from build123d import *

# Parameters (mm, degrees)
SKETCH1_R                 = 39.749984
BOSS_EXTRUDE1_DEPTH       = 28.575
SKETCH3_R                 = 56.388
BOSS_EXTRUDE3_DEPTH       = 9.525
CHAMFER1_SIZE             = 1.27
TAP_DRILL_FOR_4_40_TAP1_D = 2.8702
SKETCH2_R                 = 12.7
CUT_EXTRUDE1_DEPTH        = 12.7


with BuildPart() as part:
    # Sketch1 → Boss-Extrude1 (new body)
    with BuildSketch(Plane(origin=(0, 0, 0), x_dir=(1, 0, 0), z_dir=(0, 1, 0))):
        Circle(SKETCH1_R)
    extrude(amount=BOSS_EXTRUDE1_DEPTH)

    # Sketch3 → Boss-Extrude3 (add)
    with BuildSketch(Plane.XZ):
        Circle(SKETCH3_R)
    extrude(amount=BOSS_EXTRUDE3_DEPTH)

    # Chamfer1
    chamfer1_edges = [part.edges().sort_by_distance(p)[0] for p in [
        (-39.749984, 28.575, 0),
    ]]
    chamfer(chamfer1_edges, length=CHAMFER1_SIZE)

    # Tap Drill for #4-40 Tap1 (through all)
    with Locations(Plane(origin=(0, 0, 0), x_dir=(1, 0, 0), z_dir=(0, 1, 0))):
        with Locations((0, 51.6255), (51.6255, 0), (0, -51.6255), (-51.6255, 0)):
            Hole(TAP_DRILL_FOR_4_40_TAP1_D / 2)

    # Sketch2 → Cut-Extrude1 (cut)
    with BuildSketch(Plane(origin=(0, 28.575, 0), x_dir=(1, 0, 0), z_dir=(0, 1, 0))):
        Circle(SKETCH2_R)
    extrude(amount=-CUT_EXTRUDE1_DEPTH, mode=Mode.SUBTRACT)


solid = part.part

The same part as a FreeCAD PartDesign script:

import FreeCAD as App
import Part
import Sketcher
Q = App.Units.Quantity


def edges_at(feature, points):
    """Names of the edges that pass closest to the given points."""
    edges = feature.Shape.Edges
    near = lambda p: min(range(len(edges)), key=lambda i: edges[i].distToShape(Part.Vertex(*p))[0])
    return sorted({f"Edge{near(p) + 1}" for p in points})

doc = App.newDocument("Part")
body = doc.addObject("PartDesign::Body", "Body")

sketch1 = body.newObject("Sketcher::SketchObject", "Sketch")
sketch1.AttachmentSupport = (doc.getObject("XZ_Plane"), [""])
sketch1.MapMode = "FlatFace"
sketch1.addGeometry(Part.Circle(App.Vector(0, 0, 0), App.Vector(0, 0, 1), 40), False)
sketch1.addConstraint(Sketcher.Constraint("Coincident", 0, 3, -1, 1))
sketch1.addConstraint(Sketcher.Constraint("Diameter", 0, 79.499968))
pad1 = body.newObject("PartDesign::Pad", "Pad")
pad1.Profile = sketch1
pad1.Length = Q("1.125 in")
pad1.Reversed = True

sketch2 = body.newObject("Sketcher::SketchObject", "Sketch001")
sketch2.AttachmentSupport = (doc.getObject("XZ_Plane"), [""])
sketch2.MapMode = "FlatFace"
sketch2.addGeometry(Part.Circle(App.Vector(0, 0, 0), App.Vector(0, 0, 1), 56), False)
sketch2.addConstraint(Sketcher.Constraint("Coincident", 0, 3, -1, 1))
sketch2.addConstraint(Sketcher.Constraint("Diameter", 0, Q("4.44 in")))
pad2 = body.newObject("PartDesign::Pad", "Pad001")
pad2.Profile = sketch2
pad2.Length = Q("0.375 in")
doc.recompute()

chamfer = body.newObject("PartDesign::Chamfer", "Chamfer")
chamfer.Base = (pad2, edges_at(pad2, [(-39.75, 28.575, 0)]))
chamfer.Size = Q("0.05 in")

sketch3 = body.newObject("Sketcher::SketchObject", "Sketch002")
sketch3.AttachmentSupport = (doc.getObject("XZ_Plane"), [""])
sketch3.MapMode = "FlatFace"
sketch3.addGeometry(Part.Circle(App.Vector(0, -51.6, 0), App.Vector(0, 0, 1), 1.4), False)
sketch3.addGeometry(Part.Circle(App.Vector(51.6, 0, 0), App.Vector(0, 0, 1), 1.4), False)
sketch3.addGeometry(Part.Circle(App.Vector(0, 51.6, 0), App.Vector(0, 0, 1), 1.4), False)
sketch3.addGeometry(Part.Circle(App.Vector(-51.6, 0, 0), App.Vector(0, 0, 1), 1.4), False)
sketch3.addConstraint(Sketcher.Constraint("Equal", 0, 1))
sketch3.addConstraint(Sketcher.Constraint("Equal", 1, 2))
sketch3.addConstraint(Sketcher.Constraint("Equal", 2, 3))
sketch3.addConstraint(Sketcher.Constraint("Symmetric", 0, 3, 2, 3, -1, 1))
sketch3.addConstraint(Sketcher.Constraint("Symmetric", 1, 3, 3, 3, -1, 1))
sketch3.addConstraint(Sketcher.Constraint("PointOnObject", 0, 3, -2))
sketch3.addConstraint(Sketcher.Constraint("PointOnObject", 1, 3, -1))
sketch3.addConstraint(Sketcher.Constraint("Diameter", 0, Q("0.113 in")))
sketch3.addConstraint(Sketcher.Constraint("DistanceY", 0, 3, 2, 3, Q("4.065 in")))
sketch3.addConstraint(Sketcher.Constraint("DistanceX", 3, 3, 1, 3, Q("4.065 in")))
doc.recompute()
hole = body.newObject("PartDesign::Hole", "Hole")
hole.Profile = sketch3
hole.ThreadType = "None"
hole.Diameter = Q("0.113 in")
hole.DepthType = "ThroughAll"
hole.Reversed = True

sketch4 = body.newObject("Sketcher::SketchObject", "Sketch003")
sketch4.AttachmentSupport = (doc.getObject("XZ_Plane"), [""])
sketch4.MapMode = "FlatFace"
sketch4.AttachmentOffset = App.Placement(App.Vector(0, 0, -1.125 * 25.4), App.Rotation())
sketch4.addGeometry(Part.Circle(App.Vector(0, 0, 0), App.Vector(0, 0, 1), 13), False)
sketch4.addConstraint(Sketcher.Constraint("Coincident", 0, 3, -1, 1))
sketch4.addConstraint(Sketcher.Constraint("Diameter", 0, Q("1 in")))
pocket1 = body.newObject("PartDesign::Pocket", "Pocket")
pocket1.Profile = sketch4
pocket1.Length = Q("0.5 in")
pocket1.Reversed = True

doc.recompute()
